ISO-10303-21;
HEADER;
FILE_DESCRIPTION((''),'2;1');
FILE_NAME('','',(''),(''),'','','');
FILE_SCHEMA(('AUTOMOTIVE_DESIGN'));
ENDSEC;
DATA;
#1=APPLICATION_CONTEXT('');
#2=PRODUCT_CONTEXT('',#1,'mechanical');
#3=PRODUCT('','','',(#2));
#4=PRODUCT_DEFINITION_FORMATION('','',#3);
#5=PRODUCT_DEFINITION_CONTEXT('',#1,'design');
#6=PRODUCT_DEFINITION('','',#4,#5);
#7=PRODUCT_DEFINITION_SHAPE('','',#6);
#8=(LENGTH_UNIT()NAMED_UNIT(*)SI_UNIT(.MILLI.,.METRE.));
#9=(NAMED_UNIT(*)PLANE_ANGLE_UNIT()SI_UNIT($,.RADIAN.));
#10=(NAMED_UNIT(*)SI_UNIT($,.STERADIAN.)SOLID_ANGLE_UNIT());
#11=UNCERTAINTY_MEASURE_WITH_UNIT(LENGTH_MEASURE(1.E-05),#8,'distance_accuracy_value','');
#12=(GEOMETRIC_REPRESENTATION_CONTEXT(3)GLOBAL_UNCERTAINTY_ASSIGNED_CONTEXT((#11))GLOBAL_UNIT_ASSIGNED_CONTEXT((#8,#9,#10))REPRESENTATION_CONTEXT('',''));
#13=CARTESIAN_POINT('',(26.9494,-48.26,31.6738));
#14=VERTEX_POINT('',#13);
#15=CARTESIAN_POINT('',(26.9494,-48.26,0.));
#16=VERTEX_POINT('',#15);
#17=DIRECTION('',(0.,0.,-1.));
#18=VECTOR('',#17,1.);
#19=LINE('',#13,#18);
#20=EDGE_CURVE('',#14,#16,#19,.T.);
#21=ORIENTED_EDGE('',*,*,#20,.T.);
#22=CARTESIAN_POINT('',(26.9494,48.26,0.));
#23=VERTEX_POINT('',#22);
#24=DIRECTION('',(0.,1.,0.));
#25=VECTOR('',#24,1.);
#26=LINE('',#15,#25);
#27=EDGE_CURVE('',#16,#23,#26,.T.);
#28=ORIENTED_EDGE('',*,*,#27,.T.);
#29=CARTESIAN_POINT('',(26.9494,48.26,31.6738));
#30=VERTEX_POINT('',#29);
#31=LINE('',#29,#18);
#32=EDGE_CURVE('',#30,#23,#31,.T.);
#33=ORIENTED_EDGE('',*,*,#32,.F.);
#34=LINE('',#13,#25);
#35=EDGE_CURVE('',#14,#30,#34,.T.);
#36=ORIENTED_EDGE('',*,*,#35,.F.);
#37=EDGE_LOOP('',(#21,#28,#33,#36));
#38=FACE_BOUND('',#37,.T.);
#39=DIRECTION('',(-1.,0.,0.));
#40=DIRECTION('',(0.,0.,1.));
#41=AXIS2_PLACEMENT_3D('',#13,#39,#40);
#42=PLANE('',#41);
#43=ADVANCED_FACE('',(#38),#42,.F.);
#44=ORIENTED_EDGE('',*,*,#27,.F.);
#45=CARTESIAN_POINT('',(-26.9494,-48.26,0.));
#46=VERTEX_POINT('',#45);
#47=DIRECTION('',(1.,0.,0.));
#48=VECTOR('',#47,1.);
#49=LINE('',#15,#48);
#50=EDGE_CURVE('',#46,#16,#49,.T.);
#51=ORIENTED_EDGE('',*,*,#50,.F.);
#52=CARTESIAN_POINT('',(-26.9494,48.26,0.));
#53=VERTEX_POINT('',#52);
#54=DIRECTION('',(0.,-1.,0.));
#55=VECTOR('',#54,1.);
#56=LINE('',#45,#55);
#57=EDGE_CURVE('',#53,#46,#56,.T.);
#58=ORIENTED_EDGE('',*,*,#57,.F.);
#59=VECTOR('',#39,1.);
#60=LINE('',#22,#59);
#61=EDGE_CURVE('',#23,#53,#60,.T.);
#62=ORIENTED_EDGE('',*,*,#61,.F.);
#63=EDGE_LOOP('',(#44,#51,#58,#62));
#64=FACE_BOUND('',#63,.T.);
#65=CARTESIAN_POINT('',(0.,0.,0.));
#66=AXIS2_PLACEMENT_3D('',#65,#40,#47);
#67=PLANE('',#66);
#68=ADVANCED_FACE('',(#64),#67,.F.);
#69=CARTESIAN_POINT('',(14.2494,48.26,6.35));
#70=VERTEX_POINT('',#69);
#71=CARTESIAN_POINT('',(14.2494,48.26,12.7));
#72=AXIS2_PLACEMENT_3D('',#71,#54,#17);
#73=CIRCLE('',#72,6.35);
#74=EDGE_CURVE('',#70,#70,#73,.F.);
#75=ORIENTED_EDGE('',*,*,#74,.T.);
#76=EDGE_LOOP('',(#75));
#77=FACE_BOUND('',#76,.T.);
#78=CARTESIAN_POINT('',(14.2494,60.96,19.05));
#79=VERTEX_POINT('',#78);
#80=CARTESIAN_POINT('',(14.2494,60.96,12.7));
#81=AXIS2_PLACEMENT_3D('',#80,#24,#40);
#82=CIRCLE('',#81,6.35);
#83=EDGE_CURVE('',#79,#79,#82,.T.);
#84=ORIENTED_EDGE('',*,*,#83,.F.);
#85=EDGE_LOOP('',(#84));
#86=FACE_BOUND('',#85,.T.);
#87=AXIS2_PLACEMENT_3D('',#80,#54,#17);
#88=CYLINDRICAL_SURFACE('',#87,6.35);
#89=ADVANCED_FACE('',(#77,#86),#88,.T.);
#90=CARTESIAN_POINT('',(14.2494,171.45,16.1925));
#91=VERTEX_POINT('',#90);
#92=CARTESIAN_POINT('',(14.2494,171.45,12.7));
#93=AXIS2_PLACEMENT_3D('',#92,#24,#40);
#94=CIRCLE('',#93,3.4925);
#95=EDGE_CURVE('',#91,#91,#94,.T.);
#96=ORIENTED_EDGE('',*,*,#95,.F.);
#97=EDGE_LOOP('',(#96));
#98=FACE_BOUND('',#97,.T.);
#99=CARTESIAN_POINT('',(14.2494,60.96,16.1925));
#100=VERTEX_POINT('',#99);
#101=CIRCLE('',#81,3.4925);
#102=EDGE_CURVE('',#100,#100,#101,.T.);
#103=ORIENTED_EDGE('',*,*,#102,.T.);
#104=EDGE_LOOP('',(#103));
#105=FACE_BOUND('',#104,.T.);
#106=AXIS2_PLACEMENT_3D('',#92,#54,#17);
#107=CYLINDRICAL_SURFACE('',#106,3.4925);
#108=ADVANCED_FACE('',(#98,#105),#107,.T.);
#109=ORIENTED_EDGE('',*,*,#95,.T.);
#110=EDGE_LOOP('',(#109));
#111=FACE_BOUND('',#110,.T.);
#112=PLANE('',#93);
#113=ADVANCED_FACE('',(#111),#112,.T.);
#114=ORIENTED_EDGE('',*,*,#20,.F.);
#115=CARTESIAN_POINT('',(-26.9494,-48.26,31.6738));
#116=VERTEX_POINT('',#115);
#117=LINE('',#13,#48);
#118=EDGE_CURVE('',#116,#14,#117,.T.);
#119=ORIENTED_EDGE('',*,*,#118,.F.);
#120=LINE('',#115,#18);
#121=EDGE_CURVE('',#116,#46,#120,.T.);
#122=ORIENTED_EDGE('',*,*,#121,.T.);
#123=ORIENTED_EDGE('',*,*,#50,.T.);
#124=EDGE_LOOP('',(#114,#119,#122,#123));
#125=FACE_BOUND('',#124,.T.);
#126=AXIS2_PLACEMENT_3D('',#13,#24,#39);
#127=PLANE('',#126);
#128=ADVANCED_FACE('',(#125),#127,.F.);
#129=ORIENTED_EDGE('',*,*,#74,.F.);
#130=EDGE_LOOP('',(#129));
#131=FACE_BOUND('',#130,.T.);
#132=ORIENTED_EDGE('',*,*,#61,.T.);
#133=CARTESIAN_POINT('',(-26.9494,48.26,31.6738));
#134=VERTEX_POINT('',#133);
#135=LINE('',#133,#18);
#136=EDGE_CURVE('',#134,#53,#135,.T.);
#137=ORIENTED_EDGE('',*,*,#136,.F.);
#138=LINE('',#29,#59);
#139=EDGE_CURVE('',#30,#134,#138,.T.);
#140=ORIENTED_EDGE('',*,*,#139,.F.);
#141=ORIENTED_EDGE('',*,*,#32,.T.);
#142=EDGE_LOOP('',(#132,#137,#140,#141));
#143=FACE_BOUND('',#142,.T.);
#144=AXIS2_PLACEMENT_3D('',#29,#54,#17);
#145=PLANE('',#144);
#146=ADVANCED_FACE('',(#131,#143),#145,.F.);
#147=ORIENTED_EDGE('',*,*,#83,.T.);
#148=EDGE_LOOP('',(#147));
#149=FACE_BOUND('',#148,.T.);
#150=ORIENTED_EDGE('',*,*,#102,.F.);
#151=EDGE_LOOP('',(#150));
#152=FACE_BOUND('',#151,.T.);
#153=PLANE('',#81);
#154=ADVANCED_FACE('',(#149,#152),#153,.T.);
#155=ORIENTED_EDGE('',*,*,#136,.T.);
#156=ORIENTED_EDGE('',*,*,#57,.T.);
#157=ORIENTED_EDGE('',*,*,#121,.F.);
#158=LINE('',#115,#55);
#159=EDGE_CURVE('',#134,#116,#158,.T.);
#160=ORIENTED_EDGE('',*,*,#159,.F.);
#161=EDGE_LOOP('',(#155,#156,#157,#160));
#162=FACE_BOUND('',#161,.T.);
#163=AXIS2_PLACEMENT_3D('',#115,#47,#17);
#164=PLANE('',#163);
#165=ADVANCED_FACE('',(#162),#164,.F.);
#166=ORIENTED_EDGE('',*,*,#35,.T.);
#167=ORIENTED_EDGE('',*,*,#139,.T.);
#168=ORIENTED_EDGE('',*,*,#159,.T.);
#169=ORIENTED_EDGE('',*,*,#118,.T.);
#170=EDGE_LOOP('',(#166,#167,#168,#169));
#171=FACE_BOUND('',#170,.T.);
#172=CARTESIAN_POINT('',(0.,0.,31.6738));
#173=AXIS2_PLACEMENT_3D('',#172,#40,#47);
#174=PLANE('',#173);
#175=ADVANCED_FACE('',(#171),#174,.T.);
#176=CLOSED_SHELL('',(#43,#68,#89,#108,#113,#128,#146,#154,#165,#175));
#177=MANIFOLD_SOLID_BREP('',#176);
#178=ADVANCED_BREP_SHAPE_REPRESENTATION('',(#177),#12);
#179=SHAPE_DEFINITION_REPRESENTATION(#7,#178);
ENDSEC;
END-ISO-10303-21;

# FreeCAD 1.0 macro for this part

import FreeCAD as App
import Part
import Sketcher
from FreeCAD import Vector
Q = App.Units.Quantity

doc = App.newDocument("Part")
body = doc.addObject("PartDesign::Body", "Body")

# Sketch on XY plane
sketch1 = body.newObject("Sketcher::SketchObject", "Sketch")
sketch1.AttachmentSupport = (doc.getObject("XY_Plane"), [""])
sketch1.MapMode = "FlatFace"
sketch1.addGeometry([
    Part.LineSegment(Vector(-27, 48, 0), Vector(-27, -48, 0)),
    Part.LineSegment(Vector(-27, -48, 0), Vector(27, -48, 0)),
    Part.LineSegment(Vector(27, -48, 0), Vector(27, 48, 0)),
    Part.LineSegment(Vector(27, 48, 0), Vector(-27, 48, 0)),
], False)
sketch1.addConstraint([
    Sketcher.Constraint("Coincident", 0, 2, 1, 1),
    Sketcher.Constraint("Coincident", 1, 2, 2, 1),
    Sketcher.Constraint("Coincident", 2, 2, 3, 1),
    Sketcher.Constraint("Coincident", 3, 2, 0, 1),
    Sketcher.Constraint("Vertical", 0),
    Sketcher.Constraint("Horizontal", 1),
    Sketcher.Constraint("Vertical", 2),
    Sketcher.Constraint("Horizontal", 3),
    Sketcher.Constraint("Symmetric", 0, 2, 2, 2, -1, 1),
    Sketcher.Constraint("DistanceY", 0, 2, 0, 1, Q("3.8 in")),
    Sketcher.Constraint("DistanceX", 1, 1, 1, 2, Q("2.122 in")),
])
pad1 = body.newObject("PartDesign::Pad", "Pad")
pad1.Profile = sketch1
pad1.Length = Q("1.247 in")

# Sketch on XZ plane
sketch2 = body.newObject("Sketcher::SketchObject", "Sketch001")
sketch2.AttachmentSupport = (doc.getObject("XZ_Plane"), [""])
sketch2.MapMode = "FlatFace"
sketch2.AttachmentOffset = App.Placement(Vector(0, 0, -1.9 * 25.4), App.Rotation())
sketch2.addGeometry(Part.Circle(Vector(14, 13, 0), Vector(0, 0, 1), 6), False)
sketch2.addConstraint([
    Sketcher.Constraint("Diameter", 0, Q("0.5 in")),
    Sketcher.Constraint("DistanceY", -1, 1, 0, 3, Q("0.5 in")),
    Sketcher.Constraint("DistanceX", -1, 1, 0, 3, Q("0.561 in")),
])
pad2 = body.newObject("PartDesign::Pad", "Pad001")
pad2.Profile = sketch2
pad2.Length = Q("0.5 in")
pad2.Reversed = True

# Sketch on XZ plane
sketch3 = body.newObject("Sketcher::SketchObject", "Sketch002")
sketch3.AttachmentSupport = (doc.getObject("XZ_Plane"), [""])
sketch3.MapMode = "FlatFace"
sketch3.AttachmentOffset = App.Placement(Vector(0, 0, -2.4 * 25.4), App.Rotation())
sketch3.addGeometry(Part.Circle(Vector(14.2, 12.7, 0), Vector(0, 0, 1), 3.5), False)
sketch3.addConstraint([
    Sketcher.Constraint("Diameter", 0, Q("0.275 in")),
    Sketcher.Constraint("DistanceY", -1, 1, 0, 3, Q("0.5 in")),
    Sketcher.Constraint("DistanceX", -1, 1, 0, 3, Q("0.561 in")),
])
pad3 = body.newObject("PartDesign::Pad", "Pad002")
pad3.Profile = sketch3
pad3.Length = Q("4.35 in")
pad3.Reversed = True

doc.recompute()
